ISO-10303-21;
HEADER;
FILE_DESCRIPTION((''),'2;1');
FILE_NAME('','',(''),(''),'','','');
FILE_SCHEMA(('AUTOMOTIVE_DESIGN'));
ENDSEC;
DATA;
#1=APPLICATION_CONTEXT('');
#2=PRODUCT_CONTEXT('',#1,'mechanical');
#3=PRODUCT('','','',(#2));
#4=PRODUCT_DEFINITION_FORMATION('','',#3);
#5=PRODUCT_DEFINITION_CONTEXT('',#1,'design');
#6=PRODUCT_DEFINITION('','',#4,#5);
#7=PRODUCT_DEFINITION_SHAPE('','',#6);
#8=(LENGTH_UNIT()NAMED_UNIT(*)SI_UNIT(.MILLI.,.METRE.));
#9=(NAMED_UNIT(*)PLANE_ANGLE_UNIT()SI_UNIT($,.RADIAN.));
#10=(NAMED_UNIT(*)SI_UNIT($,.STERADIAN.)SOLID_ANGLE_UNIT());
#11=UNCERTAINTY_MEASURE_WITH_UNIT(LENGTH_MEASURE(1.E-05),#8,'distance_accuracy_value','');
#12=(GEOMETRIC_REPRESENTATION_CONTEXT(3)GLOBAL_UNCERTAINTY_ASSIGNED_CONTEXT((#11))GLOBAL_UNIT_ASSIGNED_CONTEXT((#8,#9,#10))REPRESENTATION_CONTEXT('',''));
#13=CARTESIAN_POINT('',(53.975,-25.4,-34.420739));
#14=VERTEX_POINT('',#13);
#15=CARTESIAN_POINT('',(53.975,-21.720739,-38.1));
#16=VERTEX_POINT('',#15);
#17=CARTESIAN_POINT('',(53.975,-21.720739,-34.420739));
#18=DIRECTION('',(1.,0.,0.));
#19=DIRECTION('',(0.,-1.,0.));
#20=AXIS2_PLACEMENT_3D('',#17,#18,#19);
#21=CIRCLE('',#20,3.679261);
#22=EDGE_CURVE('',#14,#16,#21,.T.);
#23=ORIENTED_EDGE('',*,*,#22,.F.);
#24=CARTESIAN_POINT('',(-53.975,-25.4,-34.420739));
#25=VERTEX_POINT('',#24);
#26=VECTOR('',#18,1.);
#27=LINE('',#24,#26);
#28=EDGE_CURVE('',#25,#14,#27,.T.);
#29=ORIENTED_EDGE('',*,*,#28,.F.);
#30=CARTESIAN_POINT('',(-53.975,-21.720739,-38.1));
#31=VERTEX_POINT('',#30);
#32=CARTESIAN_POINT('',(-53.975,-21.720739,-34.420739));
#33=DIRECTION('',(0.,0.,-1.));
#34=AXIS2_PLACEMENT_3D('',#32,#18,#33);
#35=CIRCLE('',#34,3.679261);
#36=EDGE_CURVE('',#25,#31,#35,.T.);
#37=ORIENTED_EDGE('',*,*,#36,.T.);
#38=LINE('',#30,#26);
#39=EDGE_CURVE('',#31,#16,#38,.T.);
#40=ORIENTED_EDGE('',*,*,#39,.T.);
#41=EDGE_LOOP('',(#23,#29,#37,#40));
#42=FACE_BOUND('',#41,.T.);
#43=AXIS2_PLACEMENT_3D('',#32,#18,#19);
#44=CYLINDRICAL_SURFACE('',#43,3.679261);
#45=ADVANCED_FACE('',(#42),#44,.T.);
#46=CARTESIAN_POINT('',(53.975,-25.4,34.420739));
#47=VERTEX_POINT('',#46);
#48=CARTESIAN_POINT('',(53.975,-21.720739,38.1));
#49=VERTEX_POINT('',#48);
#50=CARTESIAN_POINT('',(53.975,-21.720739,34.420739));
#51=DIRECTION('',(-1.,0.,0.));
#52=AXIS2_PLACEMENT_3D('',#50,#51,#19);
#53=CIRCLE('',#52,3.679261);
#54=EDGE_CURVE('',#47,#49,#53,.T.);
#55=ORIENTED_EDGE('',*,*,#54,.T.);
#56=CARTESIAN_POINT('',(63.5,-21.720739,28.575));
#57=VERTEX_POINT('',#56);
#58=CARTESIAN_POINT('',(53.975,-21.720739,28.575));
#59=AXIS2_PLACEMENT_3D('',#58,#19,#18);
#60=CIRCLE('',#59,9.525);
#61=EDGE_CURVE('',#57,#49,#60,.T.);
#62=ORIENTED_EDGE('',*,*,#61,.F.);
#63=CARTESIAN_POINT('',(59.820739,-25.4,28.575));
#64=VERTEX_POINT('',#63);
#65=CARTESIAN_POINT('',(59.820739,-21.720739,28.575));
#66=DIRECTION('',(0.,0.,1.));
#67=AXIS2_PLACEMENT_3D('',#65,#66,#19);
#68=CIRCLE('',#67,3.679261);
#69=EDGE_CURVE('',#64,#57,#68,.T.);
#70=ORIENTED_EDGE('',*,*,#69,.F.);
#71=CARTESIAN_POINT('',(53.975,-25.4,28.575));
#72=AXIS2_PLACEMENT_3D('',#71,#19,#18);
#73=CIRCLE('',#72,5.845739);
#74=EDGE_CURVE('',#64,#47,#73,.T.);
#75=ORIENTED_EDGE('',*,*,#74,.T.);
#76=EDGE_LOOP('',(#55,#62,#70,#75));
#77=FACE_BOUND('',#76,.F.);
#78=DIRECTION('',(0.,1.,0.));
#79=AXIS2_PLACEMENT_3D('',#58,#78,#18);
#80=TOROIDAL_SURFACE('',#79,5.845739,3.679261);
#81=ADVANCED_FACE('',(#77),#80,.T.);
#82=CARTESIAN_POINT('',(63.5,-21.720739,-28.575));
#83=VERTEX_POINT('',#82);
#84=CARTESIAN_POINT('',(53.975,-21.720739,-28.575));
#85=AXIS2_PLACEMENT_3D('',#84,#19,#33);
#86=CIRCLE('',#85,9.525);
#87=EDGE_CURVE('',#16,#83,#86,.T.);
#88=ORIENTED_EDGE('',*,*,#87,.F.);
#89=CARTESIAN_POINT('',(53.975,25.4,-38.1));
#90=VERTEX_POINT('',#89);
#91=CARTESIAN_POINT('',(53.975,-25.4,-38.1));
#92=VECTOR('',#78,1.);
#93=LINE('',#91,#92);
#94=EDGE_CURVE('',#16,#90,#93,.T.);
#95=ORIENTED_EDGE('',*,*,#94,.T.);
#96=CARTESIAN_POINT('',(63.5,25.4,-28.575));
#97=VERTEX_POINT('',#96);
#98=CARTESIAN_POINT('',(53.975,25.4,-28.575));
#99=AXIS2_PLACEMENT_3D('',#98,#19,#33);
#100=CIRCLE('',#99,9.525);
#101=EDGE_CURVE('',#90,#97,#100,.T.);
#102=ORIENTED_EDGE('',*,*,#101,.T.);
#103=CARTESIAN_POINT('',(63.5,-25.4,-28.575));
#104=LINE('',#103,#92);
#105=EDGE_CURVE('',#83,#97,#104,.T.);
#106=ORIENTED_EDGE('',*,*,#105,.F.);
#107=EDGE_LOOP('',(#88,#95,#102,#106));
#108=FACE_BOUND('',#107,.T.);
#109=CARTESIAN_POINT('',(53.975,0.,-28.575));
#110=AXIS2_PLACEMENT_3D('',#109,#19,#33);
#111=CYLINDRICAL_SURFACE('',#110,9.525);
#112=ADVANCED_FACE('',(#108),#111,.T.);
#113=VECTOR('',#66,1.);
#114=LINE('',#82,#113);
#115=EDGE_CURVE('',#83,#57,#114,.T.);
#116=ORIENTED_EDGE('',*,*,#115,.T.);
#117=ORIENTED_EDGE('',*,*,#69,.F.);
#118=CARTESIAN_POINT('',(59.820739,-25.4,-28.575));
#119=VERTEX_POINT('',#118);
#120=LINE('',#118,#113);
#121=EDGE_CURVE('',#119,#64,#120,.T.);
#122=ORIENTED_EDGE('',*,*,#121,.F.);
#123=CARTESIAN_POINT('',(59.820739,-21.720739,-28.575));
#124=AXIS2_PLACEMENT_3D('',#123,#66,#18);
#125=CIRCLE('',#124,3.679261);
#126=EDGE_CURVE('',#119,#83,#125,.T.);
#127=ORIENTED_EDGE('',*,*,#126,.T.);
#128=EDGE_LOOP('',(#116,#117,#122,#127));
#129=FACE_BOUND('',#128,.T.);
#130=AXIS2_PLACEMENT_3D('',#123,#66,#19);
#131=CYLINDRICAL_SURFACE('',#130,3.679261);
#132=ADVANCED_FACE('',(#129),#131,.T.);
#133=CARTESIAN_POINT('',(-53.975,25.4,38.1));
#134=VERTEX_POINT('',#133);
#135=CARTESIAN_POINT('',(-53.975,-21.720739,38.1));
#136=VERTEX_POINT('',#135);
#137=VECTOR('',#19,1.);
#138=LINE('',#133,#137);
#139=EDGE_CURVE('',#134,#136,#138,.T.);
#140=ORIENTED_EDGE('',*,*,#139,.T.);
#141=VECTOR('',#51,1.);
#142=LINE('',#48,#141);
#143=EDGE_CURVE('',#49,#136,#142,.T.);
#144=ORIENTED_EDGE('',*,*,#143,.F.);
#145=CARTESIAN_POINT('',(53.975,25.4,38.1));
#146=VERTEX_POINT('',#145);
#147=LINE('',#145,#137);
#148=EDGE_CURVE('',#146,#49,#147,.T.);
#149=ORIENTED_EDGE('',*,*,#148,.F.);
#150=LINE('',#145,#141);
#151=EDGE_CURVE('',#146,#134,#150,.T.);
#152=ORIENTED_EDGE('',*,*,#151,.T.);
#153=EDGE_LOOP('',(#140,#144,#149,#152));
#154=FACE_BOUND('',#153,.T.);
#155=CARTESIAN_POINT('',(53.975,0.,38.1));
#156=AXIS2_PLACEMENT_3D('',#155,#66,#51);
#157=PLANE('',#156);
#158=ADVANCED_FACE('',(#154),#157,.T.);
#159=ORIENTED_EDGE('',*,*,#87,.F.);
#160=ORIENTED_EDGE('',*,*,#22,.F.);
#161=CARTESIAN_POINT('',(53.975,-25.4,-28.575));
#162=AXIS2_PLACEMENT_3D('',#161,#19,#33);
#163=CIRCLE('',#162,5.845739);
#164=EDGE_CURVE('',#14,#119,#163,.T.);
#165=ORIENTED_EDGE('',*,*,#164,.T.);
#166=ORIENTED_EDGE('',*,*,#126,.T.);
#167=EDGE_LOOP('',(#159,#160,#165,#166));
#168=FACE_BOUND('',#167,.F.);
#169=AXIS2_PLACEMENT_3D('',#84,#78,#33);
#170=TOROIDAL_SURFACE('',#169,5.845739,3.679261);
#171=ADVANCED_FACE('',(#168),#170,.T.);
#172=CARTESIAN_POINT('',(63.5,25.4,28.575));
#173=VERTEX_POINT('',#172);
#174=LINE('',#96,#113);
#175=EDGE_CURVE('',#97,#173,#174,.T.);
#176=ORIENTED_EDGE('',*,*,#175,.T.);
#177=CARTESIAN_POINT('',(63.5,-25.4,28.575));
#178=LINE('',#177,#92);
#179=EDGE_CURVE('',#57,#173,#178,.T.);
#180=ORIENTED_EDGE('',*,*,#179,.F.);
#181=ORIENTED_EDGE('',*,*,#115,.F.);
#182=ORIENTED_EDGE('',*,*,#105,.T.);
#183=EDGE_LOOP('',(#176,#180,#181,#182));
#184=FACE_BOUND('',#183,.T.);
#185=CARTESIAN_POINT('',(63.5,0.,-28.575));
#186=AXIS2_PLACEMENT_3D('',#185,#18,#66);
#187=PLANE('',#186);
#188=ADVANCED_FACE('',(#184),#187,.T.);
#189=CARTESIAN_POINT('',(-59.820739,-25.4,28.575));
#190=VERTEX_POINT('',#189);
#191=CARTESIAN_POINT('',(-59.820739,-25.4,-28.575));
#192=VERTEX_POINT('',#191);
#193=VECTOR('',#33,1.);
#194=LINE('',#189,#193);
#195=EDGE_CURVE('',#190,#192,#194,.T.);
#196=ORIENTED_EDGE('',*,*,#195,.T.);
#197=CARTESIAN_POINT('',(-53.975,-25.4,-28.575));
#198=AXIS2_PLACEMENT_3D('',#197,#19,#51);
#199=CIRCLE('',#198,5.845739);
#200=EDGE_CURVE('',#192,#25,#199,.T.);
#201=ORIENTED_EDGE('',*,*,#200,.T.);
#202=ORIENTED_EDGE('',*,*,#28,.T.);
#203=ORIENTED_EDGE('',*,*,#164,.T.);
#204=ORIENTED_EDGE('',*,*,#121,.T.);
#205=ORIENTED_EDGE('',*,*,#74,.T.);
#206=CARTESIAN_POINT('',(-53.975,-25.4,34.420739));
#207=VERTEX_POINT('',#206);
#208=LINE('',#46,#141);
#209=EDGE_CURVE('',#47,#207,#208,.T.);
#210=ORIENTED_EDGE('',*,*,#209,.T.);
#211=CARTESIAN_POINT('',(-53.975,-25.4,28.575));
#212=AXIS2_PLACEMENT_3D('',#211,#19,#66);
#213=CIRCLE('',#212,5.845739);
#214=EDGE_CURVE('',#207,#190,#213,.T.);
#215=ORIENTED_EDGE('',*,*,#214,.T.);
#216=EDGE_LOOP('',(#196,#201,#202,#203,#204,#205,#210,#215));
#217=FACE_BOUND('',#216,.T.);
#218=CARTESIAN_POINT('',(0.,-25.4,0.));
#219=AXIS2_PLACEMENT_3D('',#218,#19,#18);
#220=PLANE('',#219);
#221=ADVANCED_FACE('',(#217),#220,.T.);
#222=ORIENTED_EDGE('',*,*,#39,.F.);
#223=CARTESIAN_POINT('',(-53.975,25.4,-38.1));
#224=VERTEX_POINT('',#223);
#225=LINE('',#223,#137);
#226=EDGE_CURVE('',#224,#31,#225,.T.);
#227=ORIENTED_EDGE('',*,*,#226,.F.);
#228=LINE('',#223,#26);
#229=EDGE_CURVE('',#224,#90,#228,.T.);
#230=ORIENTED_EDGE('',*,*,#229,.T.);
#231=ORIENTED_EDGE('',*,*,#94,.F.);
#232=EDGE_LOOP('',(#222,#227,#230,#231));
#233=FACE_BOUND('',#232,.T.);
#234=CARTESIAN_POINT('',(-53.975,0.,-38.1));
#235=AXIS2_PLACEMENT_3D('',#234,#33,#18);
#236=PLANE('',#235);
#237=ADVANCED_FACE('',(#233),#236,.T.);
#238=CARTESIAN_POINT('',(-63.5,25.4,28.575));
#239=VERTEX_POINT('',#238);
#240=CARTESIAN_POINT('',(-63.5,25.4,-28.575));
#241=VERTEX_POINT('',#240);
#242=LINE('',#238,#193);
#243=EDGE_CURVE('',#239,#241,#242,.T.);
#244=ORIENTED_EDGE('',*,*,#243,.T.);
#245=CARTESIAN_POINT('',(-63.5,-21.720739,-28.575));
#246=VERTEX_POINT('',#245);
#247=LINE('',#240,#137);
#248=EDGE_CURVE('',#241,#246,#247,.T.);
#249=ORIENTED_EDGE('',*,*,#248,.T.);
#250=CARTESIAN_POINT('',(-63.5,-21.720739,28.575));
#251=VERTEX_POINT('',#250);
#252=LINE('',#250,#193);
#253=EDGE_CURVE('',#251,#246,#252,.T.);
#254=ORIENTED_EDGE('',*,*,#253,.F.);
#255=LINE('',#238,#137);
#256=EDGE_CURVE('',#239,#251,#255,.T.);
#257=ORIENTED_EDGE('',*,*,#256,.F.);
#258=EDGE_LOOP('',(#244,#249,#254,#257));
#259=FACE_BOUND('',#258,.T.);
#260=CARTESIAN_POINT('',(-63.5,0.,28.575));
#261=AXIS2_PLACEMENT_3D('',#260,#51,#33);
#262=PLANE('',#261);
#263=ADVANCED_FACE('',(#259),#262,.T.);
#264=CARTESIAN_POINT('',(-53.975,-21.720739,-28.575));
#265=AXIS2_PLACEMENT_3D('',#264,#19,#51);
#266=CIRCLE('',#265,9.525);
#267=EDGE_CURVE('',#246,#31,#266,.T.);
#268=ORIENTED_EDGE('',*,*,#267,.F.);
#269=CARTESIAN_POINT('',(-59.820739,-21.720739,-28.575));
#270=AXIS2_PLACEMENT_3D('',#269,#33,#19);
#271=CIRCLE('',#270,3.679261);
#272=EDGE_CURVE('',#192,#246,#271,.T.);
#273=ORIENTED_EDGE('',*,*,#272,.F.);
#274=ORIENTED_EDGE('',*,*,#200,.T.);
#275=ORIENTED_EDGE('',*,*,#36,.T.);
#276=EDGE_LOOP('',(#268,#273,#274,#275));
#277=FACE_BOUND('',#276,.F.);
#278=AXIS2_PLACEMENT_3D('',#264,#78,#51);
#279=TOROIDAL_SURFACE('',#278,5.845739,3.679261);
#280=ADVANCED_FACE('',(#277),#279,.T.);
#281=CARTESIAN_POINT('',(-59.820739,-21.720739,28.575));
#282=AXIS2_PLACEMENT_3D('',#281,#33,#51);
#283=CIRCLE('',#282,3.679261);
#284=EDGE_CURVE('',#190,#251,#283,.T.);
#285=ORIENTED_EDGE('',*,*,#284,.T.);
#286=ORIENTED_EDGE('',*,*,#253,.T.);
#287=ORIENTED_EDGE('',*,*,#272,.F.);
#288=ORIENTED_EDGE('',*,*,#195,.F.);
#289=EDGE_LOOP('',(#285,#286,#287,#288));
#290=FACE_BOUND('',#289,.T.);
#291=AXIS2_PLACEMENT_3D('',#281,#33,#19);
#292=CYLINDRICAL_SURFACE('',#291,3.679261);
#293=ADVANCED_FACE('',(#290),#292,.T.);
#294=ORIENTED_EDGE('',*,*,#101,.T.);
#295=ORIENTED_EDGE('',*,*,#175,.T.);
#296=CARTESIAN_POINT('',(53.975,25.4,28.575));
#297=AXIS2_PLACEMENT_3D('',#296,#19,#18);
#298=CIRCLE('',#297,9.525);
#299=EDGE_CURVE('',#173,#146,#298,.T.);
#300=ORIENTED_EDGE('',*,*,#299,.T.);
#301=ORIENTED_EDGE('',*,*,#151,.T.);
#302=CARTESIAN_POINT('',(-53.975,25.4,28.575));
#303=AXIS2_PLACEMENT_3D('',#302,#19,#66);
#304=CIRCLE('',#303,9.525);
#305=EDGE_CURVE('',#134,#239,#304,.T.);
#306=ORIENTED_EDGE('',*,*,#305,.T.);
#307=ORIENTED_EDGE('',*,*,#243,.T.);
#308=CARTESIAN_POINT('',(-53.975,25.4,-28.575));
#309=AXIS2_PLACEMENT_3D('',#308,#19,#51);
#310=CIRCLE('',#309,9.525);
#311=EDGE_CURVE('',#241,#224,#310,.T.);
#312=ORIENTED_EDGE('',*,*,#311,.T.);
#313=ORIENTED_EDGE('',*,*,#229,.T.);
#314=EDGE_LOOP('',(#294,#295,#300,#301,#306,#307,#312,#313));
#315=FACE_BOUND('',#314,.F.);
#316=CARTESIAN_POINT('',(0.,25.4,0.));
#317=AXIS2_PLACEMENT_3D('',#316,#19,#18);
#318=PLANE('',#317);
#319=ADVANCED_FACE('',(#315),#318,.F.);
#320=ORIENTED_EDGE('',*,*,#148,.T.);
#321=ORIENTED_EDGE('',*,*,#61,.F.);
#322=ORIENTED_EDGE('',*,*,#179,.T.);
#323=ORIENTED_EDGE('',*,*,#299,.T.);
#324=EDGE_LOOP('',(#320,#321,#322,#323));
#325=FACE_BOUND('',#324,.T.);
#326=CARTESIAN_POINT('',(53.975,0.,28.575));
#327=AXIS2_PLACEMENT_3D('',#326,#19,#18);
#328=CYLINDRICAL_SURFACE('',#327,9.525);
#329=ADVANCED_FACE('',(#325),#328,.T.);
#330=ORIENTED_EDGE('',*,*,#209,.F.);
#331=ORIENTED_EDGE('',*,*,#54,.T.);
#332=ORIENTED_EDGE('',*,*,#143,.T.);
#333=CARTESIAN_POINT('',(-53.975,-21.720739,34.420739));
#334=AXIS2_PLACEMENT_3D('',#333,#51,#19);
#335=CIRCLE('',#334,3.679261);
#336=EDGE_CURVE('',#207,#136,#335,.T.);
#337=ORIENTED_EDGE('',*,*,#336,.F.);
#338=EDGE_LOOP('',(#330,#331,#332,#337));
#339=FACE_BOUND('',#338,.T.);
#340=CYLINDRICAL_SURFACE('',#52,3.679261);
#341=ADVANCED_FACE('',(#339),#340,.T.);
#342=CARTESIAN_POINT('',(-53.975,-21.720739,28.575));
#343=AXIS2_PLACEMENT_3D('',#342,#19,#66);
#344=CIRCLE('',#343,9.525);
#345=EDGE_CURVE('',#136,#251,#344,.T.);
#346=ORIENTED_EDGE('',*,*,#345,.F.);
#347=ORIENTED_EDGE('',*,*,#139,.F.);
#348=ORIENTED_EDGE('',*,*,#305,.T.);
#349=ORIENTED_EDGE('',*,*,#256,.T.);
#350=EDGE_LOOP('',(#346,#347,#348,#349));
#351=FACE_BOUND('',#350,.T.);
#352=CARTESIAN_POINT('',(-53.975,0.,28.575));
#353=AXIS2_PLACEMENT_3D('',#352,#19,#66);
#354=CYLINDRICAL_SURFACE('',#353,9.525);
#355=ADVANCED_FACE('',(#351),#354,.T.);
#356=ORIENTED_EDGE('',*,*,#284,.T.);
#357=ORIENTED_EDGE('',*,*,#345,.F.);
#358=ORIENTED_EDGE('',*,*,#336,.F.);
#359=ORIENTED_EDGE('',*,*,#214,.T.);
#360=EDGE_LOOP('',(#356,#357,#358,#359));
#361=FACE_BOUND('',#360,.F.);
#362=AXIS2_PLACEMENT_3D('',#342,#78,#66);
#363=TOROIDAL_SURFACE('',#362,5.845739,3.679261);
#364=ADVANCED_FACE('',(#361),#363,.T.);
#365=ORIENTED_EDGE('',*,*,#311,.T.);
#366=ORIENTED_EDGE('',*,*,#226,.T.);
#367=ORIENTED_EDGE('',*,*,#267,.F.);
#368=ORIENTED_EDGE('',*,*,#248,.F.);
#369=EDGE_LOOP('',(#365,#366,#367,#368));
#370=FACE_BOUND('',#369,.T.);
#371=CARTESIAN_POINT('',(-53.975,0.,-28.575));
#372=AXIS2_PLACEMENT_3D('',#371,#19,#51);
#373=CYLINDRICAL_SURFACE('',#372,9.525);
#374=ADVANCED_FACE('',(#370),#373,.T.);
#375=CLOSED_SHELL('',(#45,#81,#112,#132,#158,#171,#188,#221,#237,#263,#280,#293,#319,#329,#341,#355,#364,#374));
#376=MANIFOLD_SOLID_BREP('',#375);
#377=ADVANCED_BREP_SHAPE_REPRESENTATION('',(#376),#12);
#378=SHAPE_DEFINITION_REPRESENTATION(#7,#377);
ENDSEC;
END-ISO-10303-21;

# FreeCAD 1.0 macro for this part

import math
import FreeCAD as App
import Part
import Sketcher
from FreeCAD import Vector
Q = App.Units.Quantity


def edges_at(feature, points):
    """Names of the edges that pass closest to the given points."""
    edges = feature.Shape.Edges
    near = lambda p: min(range(len(edges)), key=lambda i: edges[i].distToShape(Part.Vertex(*p))[0])
    return sorted({f"Edge{near(p) + 1}" for p in points})

doc = App.newDocument("Part")
body = doc.addObject("PartDesign::Body", "Body")

# Sketch on XZ plane
sketch1 = doc.addObject("Sketcher::SketchObject", "Sketch")
body.addObject(sketch1)
sketch1.AttachmentSupport = (doc.XZ_Plane, [""])
sketch1.MapMode = "FlatFace"
sketch1.addGeometry([
    Part.ArcOfCircle(Part.Circle(Vector(54, 29, 0), Vector(0, 0, 1), 10), math.radians(0), math.radians(90)),  # 0
    Part.LineSegment(Vector(54, 38, 0), Vector(-54, 38, 0)),  # 1
    Part.ArcOfCircle(Part.Circle(Vector(-54, 29, 0), Vector(0, 0, 1), 10), math.radians(90), math.radians(180)),  # 2
    Part.LineSegment(Vector(-64, 29, 0), Vector(-64, -29, 0)),  # 3
    Part.ArcOfCircle(Part.Circle(Vector(-54, -29, 0), Vector(0, 0, 1), 10), math.radians(180), math.radians(270)),  # 4
    Part.LineSegment(Vector(-54, -38, 0), Vector(54, -38, 0)),  # 5
    Part.ArcOfCircle(Part.Circle(Vector(54, -29, 0), Vector(0, 0, 1), 10), math.radians(-90), math.radians(0)),  # 6
    Part.LineSegment(Vector(64, -29, 0), Vector(64, 29, 0)),  # 7
], False)
sketch1.addConstraint([
    Sketcher.Constraint("Tangent", 0, 2, 1, 1),
    Sketcher.Constraint("Tangent", 1, 2, 2, 1),
    Sketcher.Constraint("Tangent", 2, 2, 3, 1),
    Sketcher.Constraint("Tangent", 3, 2, 4, 1),
    Sketcher.Constraint("Tangent", 4, 2, 5, 1),
    Sketcher.Constraint("Tangent", 5, 2, 6, 1),
    Sketcher.Constraint("Tangent", 6, 2, 7, 1),
    Sketcher.Constraint("Tangent", 7, 2, 0, 1),
    Sketcher.Constraint("Horizontal", 1),
    Sketcher.Constraint("Vertical", 3),
    Sketcher.Constraint("Horizontal", 5),
    Sketcher.Constraint("Vertical", 7),
    Sketcher.Constraint("Equal", 0, 2),
    Sketcher.Constraint("Equal", 2, 4),
    Sketcher.Constraint("Equal", 4, 6),
    Sketcher.Constraint("Symmetric", 0, 3, 4, 3, -1, 1),
    Sketcher.Constraint("Radius", 0, Q("0.375 in")),
    Sketcher.Constraint("DistanceY", 4, 2, 1, 2, Q("3 in")),
    Sketcher.Constraint("DistanceX", 1, 2, 1, 1, Q("4.25 in")),
])
pad1 = doc.addObject("PartDesign::Pad", "Pad")
body.addObject(pad1)
pad1.Profile = sketch1
pad1.Length = Q("2 in")
pad1.Midplane = True
doc.recompute()

fillet = doc.addObject("PartDesign::Fillet", "Fillet")
body.addObject(fillet)
fillet.Base = (pad1, edges_at(pad1, [(0, -25.4, 38.1)]))
fillet.Radius = 3.679261

doc.recompute()
